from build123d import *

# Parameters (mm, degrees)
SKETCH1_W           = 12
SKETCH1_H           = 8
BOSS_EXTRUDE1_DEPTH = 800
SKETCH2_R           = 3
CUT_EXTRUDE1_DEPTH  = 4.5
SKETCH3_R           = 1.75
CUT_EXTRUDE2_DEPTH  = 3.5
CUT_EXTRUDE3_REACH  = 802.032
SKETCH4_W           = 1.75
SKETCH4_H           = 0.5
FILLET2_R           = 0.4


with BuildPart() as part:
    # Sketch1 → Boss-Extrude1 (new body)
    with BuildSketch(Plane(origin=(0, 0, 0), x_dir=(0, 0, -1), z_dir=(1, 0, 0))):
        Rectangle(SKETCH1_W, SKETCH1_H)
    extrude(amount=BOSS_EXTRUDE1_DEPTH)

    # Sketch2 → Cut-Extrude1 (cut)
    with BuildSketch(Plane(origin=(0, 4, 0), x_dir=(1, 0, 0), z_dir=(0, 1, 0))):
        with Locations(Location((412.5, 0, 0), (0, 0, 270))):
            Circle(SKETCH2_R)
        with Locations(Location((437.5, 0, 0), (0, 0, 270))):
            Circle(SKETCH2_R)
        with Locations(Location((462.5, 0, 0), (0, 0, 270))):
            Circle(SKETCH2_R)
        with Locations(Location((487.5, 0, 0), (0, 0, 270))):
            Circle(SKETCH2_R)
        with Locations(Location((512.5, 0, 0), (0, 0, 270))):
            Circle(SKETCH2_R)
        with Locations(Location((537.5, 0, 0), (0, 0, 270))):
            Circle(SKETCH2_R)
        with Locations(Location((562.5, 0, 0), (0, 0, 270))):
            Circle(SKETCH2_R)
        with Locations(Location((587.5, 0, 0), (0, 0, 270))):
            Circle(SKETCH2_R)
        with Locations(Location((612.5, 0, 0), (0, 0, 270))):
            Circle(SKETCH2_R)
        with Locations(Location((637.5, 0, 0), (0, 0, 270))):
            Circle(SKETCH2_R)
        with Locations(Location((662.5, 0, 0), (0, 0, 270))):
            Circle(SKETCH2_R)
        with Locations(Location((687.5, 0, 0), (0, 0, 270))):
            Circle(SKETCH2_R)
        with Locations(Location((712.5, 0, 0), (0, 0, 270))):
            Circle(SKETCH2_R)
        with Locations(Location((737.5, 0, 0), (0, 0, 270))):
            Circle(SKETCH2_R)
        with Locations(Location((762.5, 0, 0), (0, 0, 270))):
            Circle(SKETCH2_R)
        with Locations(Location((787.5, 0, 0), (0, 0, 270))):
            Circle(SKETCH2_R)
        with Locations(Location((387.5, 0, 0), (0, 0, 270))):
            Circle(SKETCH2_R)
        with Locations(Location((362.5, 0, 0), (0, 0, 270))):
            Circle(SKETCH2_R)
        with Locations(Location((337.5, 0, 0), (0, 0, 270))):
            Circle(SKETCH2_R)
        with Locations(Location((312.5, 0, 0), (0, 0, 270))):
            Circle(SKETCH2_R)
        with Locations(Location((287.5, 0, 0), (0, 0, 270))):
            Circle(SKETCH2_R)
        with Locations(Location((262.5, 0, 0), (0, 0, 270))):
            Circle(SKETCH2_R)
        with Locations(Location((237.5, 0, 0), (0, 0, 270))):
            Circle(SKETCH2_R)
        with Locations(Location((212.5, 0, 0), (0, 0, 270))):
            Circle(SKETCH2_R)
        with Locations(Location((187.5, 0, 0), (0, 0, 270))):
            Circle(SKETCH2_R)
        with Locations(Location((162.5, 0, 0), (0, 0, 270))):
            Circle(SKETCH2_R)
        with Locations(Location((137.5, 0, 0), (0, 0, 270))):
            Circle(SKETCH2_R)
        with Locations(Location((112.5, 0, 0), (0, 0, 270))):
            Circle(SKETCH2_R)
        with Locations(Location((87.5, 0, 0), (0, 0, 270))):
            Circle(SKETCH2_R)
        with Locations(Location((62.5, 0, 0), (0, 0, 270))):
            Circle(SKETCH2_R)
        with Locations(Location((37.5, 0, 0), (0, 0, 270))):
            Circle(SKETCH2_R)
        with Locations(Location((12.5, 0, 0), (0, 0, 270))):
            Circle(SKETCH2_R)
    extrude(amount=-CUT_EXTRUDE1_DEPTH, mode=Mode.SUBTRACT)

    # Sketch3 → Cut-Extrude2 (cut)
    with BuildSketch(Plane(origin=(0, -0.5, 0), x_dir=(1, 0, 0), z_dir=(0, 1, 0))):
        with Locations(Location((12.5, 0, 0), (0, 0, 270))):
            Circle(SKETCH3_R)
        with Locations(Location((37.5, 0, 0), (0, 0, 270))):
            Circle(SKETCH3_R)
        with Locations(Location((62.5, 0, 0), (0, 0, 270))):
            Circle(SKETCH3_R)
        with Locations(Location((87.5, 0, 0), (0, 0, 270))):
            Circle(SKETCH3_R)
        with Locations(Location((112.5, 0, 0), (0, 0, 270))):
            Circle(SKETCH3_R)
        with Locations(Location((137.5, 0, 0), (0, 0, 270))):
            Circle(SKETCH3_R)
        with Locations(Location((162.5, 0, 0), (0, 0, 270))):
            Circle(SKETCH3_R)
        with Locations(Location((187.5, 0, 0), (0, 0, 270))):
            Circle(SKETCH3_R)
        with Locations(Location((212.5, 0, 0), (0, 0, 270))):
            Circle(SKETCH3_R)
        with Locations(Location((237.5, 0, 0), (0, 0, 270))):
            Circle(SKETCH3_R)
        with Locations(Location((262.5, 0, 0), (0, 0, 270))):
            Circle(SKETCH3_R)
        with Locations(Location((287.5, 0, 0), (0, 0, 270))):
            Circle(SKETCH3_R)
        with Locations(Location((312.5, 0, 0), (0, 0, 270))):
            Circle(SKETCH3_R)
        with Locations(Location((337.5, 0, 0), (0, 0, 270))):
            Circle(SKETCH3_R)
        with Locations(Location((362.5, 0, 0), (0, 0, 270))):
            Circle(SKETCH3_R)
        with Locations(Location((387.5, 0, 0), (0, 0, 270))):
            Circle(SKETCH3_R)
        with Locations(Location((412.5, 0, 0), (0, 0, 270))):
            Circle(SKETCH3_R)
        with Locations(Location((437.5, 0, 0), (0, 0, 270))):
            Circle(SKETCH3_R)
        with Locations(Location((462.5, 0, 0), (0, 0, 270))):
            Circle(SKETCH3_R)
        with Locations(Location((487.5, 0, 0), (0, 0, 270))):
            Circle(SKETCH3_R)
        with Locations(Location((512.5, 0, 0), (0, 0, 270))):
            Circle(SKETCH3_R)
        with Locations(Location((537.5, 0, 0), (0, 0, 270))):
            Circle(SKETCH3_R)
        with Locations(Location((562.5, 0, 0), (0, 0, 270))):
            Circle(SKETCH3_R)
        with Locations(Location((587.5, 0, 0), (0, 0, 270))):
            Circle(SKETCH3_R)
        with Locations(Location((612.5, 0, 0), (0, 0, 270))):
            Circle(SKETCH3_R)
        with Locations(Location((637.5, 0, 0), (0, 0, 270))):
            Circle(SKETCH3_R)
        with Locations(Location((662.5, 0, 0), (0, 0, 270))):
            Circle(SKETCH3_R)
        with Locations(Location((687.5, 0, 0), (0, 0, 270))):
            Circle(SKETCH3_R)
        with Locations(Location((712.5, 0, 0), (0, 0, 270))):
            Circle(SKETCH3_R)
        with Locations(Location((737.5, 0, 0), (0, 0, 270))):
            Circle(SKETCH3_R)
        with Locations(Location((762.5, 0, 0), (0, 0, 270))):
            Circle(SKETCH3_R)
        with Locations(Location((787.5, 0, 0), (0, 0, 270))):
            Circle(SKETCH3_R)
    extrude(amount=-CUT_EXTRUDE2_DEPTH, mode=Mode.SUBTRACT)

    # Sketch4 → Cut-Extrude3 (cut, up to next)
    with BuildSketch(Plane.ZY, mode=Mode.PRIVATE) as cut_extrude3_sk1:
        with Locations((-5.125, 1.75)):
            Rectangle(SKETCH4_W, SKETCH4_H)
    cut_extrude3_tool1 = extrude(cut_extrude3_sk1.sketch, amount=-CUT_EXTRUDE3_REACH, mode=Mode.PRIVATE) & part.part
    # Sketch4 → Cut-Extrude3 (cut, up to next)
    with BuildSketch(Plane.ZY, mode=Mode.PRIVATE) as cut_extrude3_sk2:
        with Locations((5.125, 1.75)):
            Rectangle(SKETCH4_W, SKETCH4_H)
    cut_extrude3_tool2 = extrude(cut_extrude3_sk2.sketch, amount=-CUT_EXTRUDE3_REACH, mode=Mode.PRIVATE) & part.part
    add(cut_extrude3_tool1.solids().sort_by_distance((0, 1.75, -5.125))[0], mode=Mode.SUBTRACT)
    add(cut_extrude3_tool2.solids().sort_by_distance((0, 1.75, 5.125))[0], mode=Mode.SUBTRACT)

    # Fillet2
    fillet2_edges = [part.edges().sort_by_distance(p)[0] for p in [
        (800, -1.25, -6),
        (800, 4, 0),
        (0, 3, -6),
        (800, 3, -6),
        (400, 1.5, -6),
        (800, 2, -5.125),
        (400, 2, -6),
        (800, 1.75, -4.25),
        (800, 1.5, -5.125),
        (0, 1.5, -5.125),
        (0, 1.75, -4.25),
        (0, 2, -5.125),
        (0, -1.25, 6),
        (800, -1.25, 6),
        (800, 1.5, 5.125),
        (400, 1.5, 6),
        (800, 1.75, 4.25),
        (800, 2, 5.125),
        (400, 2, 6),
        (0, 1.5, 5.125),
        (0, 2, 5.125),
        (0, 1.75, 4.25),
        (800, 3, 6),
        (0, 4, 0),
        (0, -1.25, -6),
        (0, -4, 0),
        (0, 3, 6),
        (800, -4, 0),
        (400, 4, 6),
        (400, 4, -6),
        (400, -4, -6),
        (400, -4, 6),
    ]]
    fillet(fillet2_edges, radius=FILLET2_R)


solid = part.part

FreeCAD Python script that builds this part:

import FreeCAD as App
import Part
import Sketcher
from FreeCAD import Vector
Q = App.Units.Quantity


def edges_at(feature, points):
    """Names of the edges that pass closest to the given points."""
    edges = feature.Shape.Edges
    near = lambda p: min(range(len(edges)), key=lambda i: edges[i].distToShape(Part.Vertex(*p))[0])
    return sorted({f"Edge{near(p) + 1}" for p in points})

doc = App.newDocument("Part")
body = doc.addObject("PartDesign::Body", "Body")

# Sketch on YZ plane
sketch1 = body.newObject("Sketcher::SketchObject", "Sketch")
sketch1.AttachmentSupport = (doc.getObject("YZ_Plane"), [""])
sketch1.MapMode = "FlatFace"
sketch1.addGeometry(Part.LineSegment(Vector(4, 6, 0), Vector(-4, 6, 0)), False)
sketch1.addGeometry(Part.LineSegment(Vector(-4, 6, 0), Vector(-4, -6, 0)), False)
sketch1.addGeometry(Part.LineSegment(Vector(-4, -6, 0), Vector(4, -6, 0)), False)
sketch1.addGeometry(Part.LineSegment(Vector(4, -6, 0), Vector(4, 6, 0)), False)
sketch1.addConstraint(Sketcher.Constraint("Coincident", 0, 2, 1, 1))
sketch1.addConstraint(Sketcher.Constraint("Coincident", 1, 2, 2, 1))
sketch1.addConstraint(Sketcher.Constraint("Coincident", 2, 2, 3, 1))
sketch1.addConstraint(Sketcher.Constraint("Coincident", 3, 2, 0, 1))
sketch1.addConstraint(Sketcher.Constraint("Horizontal", 0))
sketch1.addConstraint(Sketcher.Constraint("Vertical", 1))
sketch1.addConstraint(Sketcher.Constraint("Horizontal", 2))
sketch1.addConstraint(Sketcher.Constraint("Vertical", 3))
sketch1.addConstraint(Sketcher.Constraint("Symmetric", 0, 2, 2, 2, -1, 1))
sketch1.addConstraint(Sketcher.Constraint("DistanceX", 0, 2, 0, 1, Q("8 mm")))
sketch1.addConstraint(Sketcher.Constraint("DistanceY", 1, 2, 1, 1, Q("12 mm")))
pad1 = body.newObject("PartDesign::Pad", "Pad")
pad1.Profile = sketch1
pad1.Length = 800

# Sketch on XZ plane
sketch2 = body.newObject("Sketcher::SketchObject", "Sketch001")
sketch2.AttachmentSupport = (doc.getObject("XZ_Plane"), [""])
sketch2.MapMode = "FlatFace"
sketch2.AttachmentOffset = App.Placement(Vector(0, 0, -4), App.Rotation())
sketch2.addGeometry(Part.Circle(Vector(412.5, 0, 0), Vector(0, 0, 1), 3), False)
sketch2.addGeometry(Part.Circle(Vector(437.5, 0, 0), Vector(0, 0, 1), 3), False)
sketch2.addGeometry(Part.Circle(Vector(462.5, 0, 0), Vector(0, 0, 1), 3), False)
sketch2.addGeometry(Part.Circle(Vector(487.5, 0, 0), Vector(0, 0, 1), 3), False)
sketch2.addGeometry(Part.Circle(Vector(512.5, 0, 0), Vector(0, 0, 1), 3), False)
sketch2.addGeometry(Part.Circle(Vector(537.5, 0, 0), Vector(0, 0, 1), 3), False)
sketch2.addGeometry(Part.Circle(Vector(562.5, 0, 0), Vector(0, 0, 1), 3), False)
sketch2.addGeometry(Part.Circle(Vector(587.5, 0, 0), Vector(0, 0, 1), 3), False)
sketch2.addGeometry(Part.Circle(Vector(612.5, 0, 0), Vector(0, 0, 1), 3), False)
sketch2.addGeometry(Part.Circle(Vector(637.5, 0, 0), Vector(0, 0, 1), 3), False)
sketch2.addGeometry(Part.Circle(Vector(662.5, 0, 0), Vector(0, 0, 1), 3), False)
sketch2.addGeometry(Part.Circle(Vector(687.5, 0, 0), Vector(0, 0, 1), 3), False)
sketch2.addGeometry(Part.Circle(Vector(712.5, 0, 0), Vector(0, 0, 1), 3), False)
sketch2.addGeometry(Part.Circle(Vector(737.5, 0, 0), Vector(0, 0, 1), 3), False)
sketch2.addGeometry(Part.Circle(Vector(762.5, 0, 0), Vector(0, 0, 1), 3), False)
sketch2.addGeometry(Part.Circle(Vector(787.5, 0, 0), Vector(0, 0, 1), 3), False)
sketch2.addGeometry(Part.Circle(Vector(387.5, 0, 0), Vector(0, 0, 1), 3), False)
sketch2.addGeometry(Part.Circle(Vector(362.5, 0, 0), Vector(0, 0, 1), 3), False)
sketch2.addGeometry(Part.Circle(Vector(337.5, 0, 0), Vector(0, 0, 1), 3), False)
sketch2.addGeometry(Part.Circle(Vector(312.5, 0, 0), Vector(0, 0, 1), 3), False)
sketch2.addGeometry(Part.Circle(Vector(287.5, 0, 0), Vector(0, 0, 1), 3), False)
sketch2.addGeometry(Part.Circle(Vector(262.5, 0, 0), Vector(0, 0, 1), 3), False)
sketch2.addGeometry(Part.Circle(Vector(237.5, 0, 0), Vector(0, 0, 1), 3), False)
sketch2.addGeometry(Part.Circle(Vector(212.5, 0, 0), Vector(0, 0, 1), 3), False)
sketch2.addGeometry(Part.Circle(Vector(187.5, 0, 0), Vector(0, 0, 1), 3), False)
sketch2.addGeometry(Part.Circle(Vector(162.5, 0, 0), Vector(0, 0, 1), 3), False)
sketch2.addGeometry(Part.Circle(Vector(137.5, 0, 0), Vector(0, 0, 1), 3), False)
sketch2.addGeometry(Part.Circle(Vector(112.5, 0, 0), Vector(0, 0, 1), 3), False)
sketch2.addGeometry(Part.Circle(Vector(87.5, 0, 0), Vector(0, 0, 1), 3), False)
sketch2.addGeometry(Part.Circle(Vector(62.5, 0, 0), Vector(0, 0, 1), 3), False)
sketch2.addGeometry(Part.Circle(Vector(37.5, 0, 0), Vector(0, 0, 1), 3), False)
sketch2.addGeometry(Part.Circle(Vector(12.5, 0, 0), Vector(0, 0, 1), 3), False)
sketch2.addConstraint(Sketcher.Constraint("Equal", 0, 1))
sketch2.addConstraint(Sketcher.Constraint("Equal", 1, 2))
sketch2.addConstraint(Sketcher.Constraint("Equal", 2, 3))
sketch2.addConstraint(Sketcher.Constraint("Equal", 3, 4))
sketch2.addConstraint(Sketcher.Constraint("Equal", 4, 5))
sketch2.addConstraint(Sketcher.Constraint("Equal", 5, 6))
sketch2.addConstraint(Sketcher.Constraint("Equal", 6, 7))
sketch2.addConstraint(Sketcher.Constraint("Equal", 7, 8))
sketch2.addConstraint(Sketcher.Constraint("Equal", 8, 9))
sketch2.addConstraint(Sketcher.Constraint("Equal", 9, 10))
sketch2.addConstraint(Sketcher.Constraint("Equal", 10, 11))
sketch2.addConstraint(Sketcher.Constraint("Equal", 11, 12))
sketch2.addConstraint(Sketcher.Constraint("Equal", 12, 13))
sketch2.addConstraint(Sketcher.Constraint("Equal", 13, 14))
sketch2.addConstraint(Sketcher.Constraint("Equal", 14, 15))
sketch2.addConstraint(Sketcher.Constraint("Equal", 15, 16))
sketch2.addConstraint(Sketcher.Constraint("Equal", 16, 17))
sketch2.addConstraint(Sketcher.Constraint("Equal", 17, 18))
sketch2.addConstraint(Sketcher.Constraint("Equal", 18, 19))
sketch2.addConstraint(Sketcher.Constraint("Equal", 19, 20))
sketch2.addConstraint(Sketcher.Constraint("Equal", 20, 21))
sketch2.addConstraint(Sketcher.Constraint("Equal", 21, 22))
sketch2.addConstraint(Sketcher.Constraint("Equal", 22, 23))
sketch2.addConstraint(Sketcher.Constraint("Equal", 23, 24))
sketch2.addConstraint(Sketcher.Constraint("Equal", 24, 25))
sketch2.addConstraint(Sketcher.Constraint("Equal", 25, 26))
sketch2.addConstraint(Sketcher.Constraint("Equal", 26, 27))
sketch2.addConstraint(Sketcher.Constraint("Equal", 27, 28))
sketch2.addConstraint(Sketcher.Constraint("Equal", 28, 29))
sketch2.addConstraint(Sketcher.Constraint("Equal", 29, 30))
sketch2.addConstraint(Sketcher.Constraint("Equal", 30, 31))
sketch2.addConstraint(Sketcher.Constraint("PointOnObject", 0, 3, -1))
sketch2.addConstraint(Sketcher.Constraint("PointOnObject", 1, 3, -1))
sketch2.addConstraint(Sketcher.Constraint("PointOnObject", 2, 3, -1))
sketch2.addConstraint(Sketcher.Constraint("PointOnObject", 3, 3, -1))
sketch2.addConstraint(Sketcher.Constraint("PointOnObject", 4, 3, -1))
sketch2.addConstraint(Sketcher.Constraint("PointOnObject", 5, 3, -1))
sketch2.addConstraint(Sketcher.Constraint("PointOnObject", 6, 3, -1))
sketch2.addConstraint(Sketcher.Constraint("PointOnObject", 7, 3, -1))
sketch2.addConstraint(Sketcher.Constraint("PointOnObject", 8, 3, -1))
sketch2.addConstraint(Sketcher.Constraint("PointOnObject", 9, 3, -1))
sketch2.addConstraint(Sketcher.Constraint("PointOnObject", 10, 3, -1))
sketch2.addConstraint(Sketcher.Constraint("PointOnObject", 11, 3, -1))
sketch2.addConstraint(Sketcher.Constraint("PointOnObject", 12, 3, -1))
sketch2.addConstraint(Sketcher.Constraint("PointOnObject", 13, 3, -1))
sketch2.addConstraint(Sketcher.Constraint("PointOnObject", 14, 3, -1))
sketch2.addConstraint(Sketcher.Constraint("PointOnObject", 15, 3, -1))
sketch2.addConstraint(Sketcher.Constraint("PointOnObject", 16, 3, -1))
sketch2.addConstraint(Sketcher.Constraint("PointOnObject", 17, 3, -1))
sketch2.addConstraint(Sketcher.Constraint("PointOnObject", 18, 3, -1))
sketch2.addConstraint(Sketcher.Constraint("PointOnObject", 19, 3, -1))
sketch2.addConstraint(Sketcher.Constraint("PointOnObject", 20, 3, -1))
sketch2.addConstraint(Sketcher.Constraint("PointOnObject", 21, 3, -1))
sketch2.addConstraint(Sketcher.Constraint("PointOnObject", 22, 3, -1))
sketch2.addConstraint(Sketcher.Constraint("PointOnObject", 23, 3, -1))
sketch2.addConstraint(Sketcher.Constraint("PointOnObject", 24, 3, -1))
sketch2.addConstraint(Sketcher.Constraint("PointOnObject", 25, 3, -1))
sketch2.addConstraint(Sketcher.Constraint("PointOnObject", 26, 3, -1))
sketch2.addConstraint(Sketcher.Constraint("PointOnObject", 27, 3, -1))
sketch2.addConstraint(Sketcher.Constraint("PointOnObject", 28, 3, -1))
sketch2.addConstraint(Sketcher.Constraint("PointOnObject", 29, 3, -1))
sketch2.addConstraint(Sketcher.Constraint("PointOnObject", 30, 3, -1))
sketch2.addConstraint(Sketcher.Constraint("PointOnObject", 31, 3, -1))
sketch2.addConstraint(Sketcher.Constraint("Diameter", 0, Q("6 mm")))
sketch2.addConstraint(Sketcher.Constraint("DistanceX", 0, 3, 1, 3, Q("25 mm")))
sketch2.addConstraint(Sketcher.Constraint("DistanceX", 1, 3, 2, 3, Q("25 mm")))
sketch2.addConstraint(Sketcher.Constraint("DistanceX", 2, 3, 3, 3, Q("25 mm")))
sketch2.addConstraint(Sketcher.Constraint("DistanceX", 3, 3, 4, 3, Q("25 mm")))
sketch2.addConstraint(Sketcher.Constraint("DistanceX", 4, 3, 5, 3, Q("25 mm")))
sketch2.addConstraint(Sketcher.Constraint("DistanceX", 5, 3, 6, 3, Q("25 mm")))
sketch2.addConstraint(Sketcher.Constraint("DistanceX", 6, 3, 7, 3, Q("25 mm")))
sketch2.addConstraint(Sketcher.Constraint("DistanceX", 7, 3, 8, 3, Q("25 mm")))
sketch2.addConstraint(Sketcher.Constraint("DistanceX", 8, 3, 9, 3, Q("25 mm")))
sketch2.addConstraint(Sketcher.Constraint("DistanceX", 9, 3, 10, 3, Q("25 mm")))
sketch2.addConstraint(Sketcher.Constraint("DistanceX", 10, 3, 11, 3, Q("25 mm")))
sketch2.addConstraint(Sketcher.Constraint("DistanceX", 11, 3, 12, 3, Q("25 mm")))
sketch2.addConstraint(Sketcher.Constraint("DistanceX", 12, 3, 13, 3, Q("25 mm")))
sketch2.addConstraint(Sketcher.Constraint("DistanceX", 13, 3, 14, 3, Q("25 mm")))
sketch2.addConstraint(Sketcher.Constraint("DistanceX", 14, 3, 15, 3, Q("25 mm")))
sketch2.addConstraint(Sketcher.Constraint("DistanceX", 16, 3, 0, 3, Q("25 mm")))
sketch2.addConstraint(Sketcher.Constraint("DistanceX", 17, 3, 16, 3, Q("25 mm")))
sketch2.addConstraint(Sketcher.Constraint("DistanceX", 18, 3, 17, 3, Q("25 mm")))
sketch2.addConstraint(Sketcher.Constraint("DistanceX", 19, 3, 18, 3, Q("25 mm")))
sketch2.addConstraint(Sketcher.Constraint("DistanceX", 20, 3, 19, 3, Q("25 mm")))
sketch2.addConstraint(Sketcher.Constraint("DistanceX", 21, 3, 20, 3, Q("25 mm")))
sketch2.addConstraint(Sketcher.Constraint("DistanceX", 22, 3, 21, 3, Q("25 mm")))
sketch2.addConstraint(Sketcher.Constraint("DistanceX", 23, 3, 22, 3, Q("25 mm")))
sketch2.addConstraint(Sketcher.Constraint("DistanceX", 24, 3, 23, 3, Q("25 mm")))
sketch2.addConstraint(Sketcher.Constraint("DistanceX", 25, 3, 24, 3, Q("25 mm")))
sketch2.addConstraint(Sketcher.Constraint("DistanceX", 26, 3, 25, 3, Q("25 mm")))
sketch2.addConstraint(Sketcher.Constraint("DistanceX", 27, 3, 26, 3, Q("25 mm")))
sketch2.addConstraint(Sketcher.Constraint("DistanceX", 28, 3, 27, 3, Q("25 mm")))
sketch2.addConstraint(Sketcher.Constraint("DistanceX", 29, 3, 28, 3, Q("25 mm")))
sketch2.addConstraint(Sketcher.Constraint("DistanceX", 30, 3, 29, 3, Q("25 mm")))
sketch2.addConstraint(Sketcher.Constraint("DistanceX", 31, 3, 30, 3, Q("25 mm")))
sketch2.addConstraint(Sketcher.Constraint("DistanceX", -1, 1, 0, 3, Q("412.5 mm")))
pocket1 = body.newObject("PartDesign::Pocket", "Pocket")
pocket1.Profile = sketch2
pocket1.Length = 4.5
pocket1.Reversed = True

# Sketch on XZ plane
sketch3 = body.newObject("Sketcher::SketchObject", "Sketch002")
sketch3.AttachmentSupport = (doc.getObject("XZ_Plane"), [""])
sketch3.MapMode = "FlatFace"
sketch3.AttachmentOffset = App.Placement(Vector(0, 0, 0.5), App.Rotation())
sketch3.addGeometry(Part.Circle(Vector(12.5, 0, 0), Vector(0, 0, 1), 1.8), False)
sketch3.addGeometry(Part.Circle(Vector(37.5, 0, 0), Vector(0, 0, 1), 1.8), False)
sketch3.addGeometry(Part.Circle(Vector(62.5, 0, 0), Vector(0, 0, 1), 1.8), False)
sketch3.addGeometry(Part.Circle(Vector(87.5, 0, 0), Vector(0, 0, 1), 1.8), False)
sketch3.addGeometry(Part.Circle(Vector(112.5, 0, 0), Vector(0, 0, 1), 1.8), False)
sketch3.addGeometry(Part.Circle(Vector(137.5, 0, 0), Vector(0, 0, 1), 1.8), False)
sketch3.addGeometry(Part.Circle(Vector(162.5, 0, 0), Vector(0, 0, 1), 1.8), False)
sketch3.addGeometry(Part.Circle(Vector(187.5, 0, 0), Vector(0, 0, 1), 1.8), False)
sketch3.addGeometry(Part.Circle(Vector(212.5, 0, 0), Vector(0, 0, 1), 1.8), False)
sketch3.addGeometry(Part.Circle(Vector(237.5, 0, 0), Vector(0, 0, 1), 1.8), False)
sketch3.addGeometry(Part.Circle(Vector(262.5, 0, 0), Vector(0, 0, 1), 1.8), False)
sketch3.addGeometry(Part.Circle(Vector(287.5, 0, 0), Vector(0, 0, 1), 1.8), False)
sketch3.addGeometry(Part.Circle(Vector(312.5, 0, 0), Vector(0, 0, 1), 1.8), False)
sketch3.addGeometry(Part.Circle(Vector(337.5, 0, 0), Vector(0, 0, 1), 1.8), False)
sketch3.addGeometry(Part.Circle(Vector(362.5, 0, 0), Vector(0, 0, 1), 1.8), False)
sketch3.addGeometry(Part.Circle(Vector(387.5, 0, 0), Vector(0, 0, 1), 1.8), False)
sketch3.addGeometry(Part.Circle(Vector(412.5, 0, 0), Vector(0, 0, 1), 1.8), False)
sketch3.addGeometry(Part.Circle(Vector(437.5, 0, 0), Vector(0, 0, 1), 1.8), False)
sketch3.addGeometry(Part.Circle(Vector(462.5, 0, 0), Vector(0, 0, 1), 1.8), False)
sketch3.addGeometry(Part.Circle(Vector(487.5, 0, 0), Vector(0, 0, 1), 1.8), False)
sketch3.addGeometry(Part.Circle(Vector(512.5, 0, 0), Vector(0, 0, 1), 1.8), False)
sketch3.addGeometry(Part.Circle(Vector(537.5, 0, 0), Vector(0, 0, 1), 1.8), False)
sketch3.addGeometry(Part.Circle(Vector(562.5, 0, 0), Vector(0, 0, 1), 1.8), False)
sketch3.addGeometry(Part.Circle(Vector(587.5, 0, 0), Vector(0, 0, 1), 1.8), False)
sketch3.addGeometry(Part.Circle(Vector(612.5, 0, 0), Vector(0, 0, 1), 1.8), False)
sketch3.addGeometry(Part.Circle(Vector(637.5, 0, 0), Vector(0, 0, 1), 1.8), False)
sketch3.addGeometry(Part.Circle(Vector(662.5, 0, 0), Vector(0, 0, 1), 1.8), False)
sketch3.addGeometry(Part.Circle(Vector(687.5, 0, 0), Vector(0, 0, 1), 1.8), False)
sketch3.addGeometry(Part.Circle(Vector(712.5, 0, 0), Vector(0, 0, 1), 1.8), False)
sketch3.addGeometry(Part.Circle(Vector(737.5, 0, 0), Vector(0, 0, 1), 1.8), False)
sketch3.addGeometry(Part.Circle(Vector(762.5, 0, 0), Vector(0, 0, 1), 1.8), False)
sketch3.addGeometry(Part.Circle(Vector(787.5, 0, 0), Vector(0, 0, 1), 1.8), False)
sketch3.addConstraint(Sketcher.Constraint("Equal", 0, 1))
sketch3.addConstraint(Sketcher.Constraint("Equal", 1, 2))
sketch3.addConstraint(Sketcher.Constraint("Equal", 2, 3))
sketch3.addConstraint(Sketcher.Constraint("Equal", 3, 4))
sketch3.addConstraint(Sketcher.Constraint("Equal", 4, 5))
sketch3.addConstraint(Sketcher.Constraint("Equal", 5, 6))
sketch3.addConstraint(Sketcher.Constraint("Equal", 6, 7))
sketch3.addConstraint(Sketcher.Constraint("Equal", 7, 8))
sketch3.addConstraint(Sketcher.Constraint("Equal", 8, 9))
sketch3.addConstraint(Sketcher.Constraint("Equal", 9, 10))
sketch3.addConstraint(Sketcher.Constraint("Equal", 10, 11))
sketch3.addConstraint(Sketcher.Constraint("Equal", 11, 12))
sketch3.addConstraint(Sketcher.Constraint("Equal", 12, 13))
sketch3.addConstraint(Sketcher.Constraint("Equal", 13, 14))
sketch3.addConstraint(Sketcher.Constraint("Equal", 14, 15))
sketch3.addConstraint(Sketcher.Constraint("Equal", 15, 16))
sketch3.addConstraint(Sketcher.Constraint("Equal", 16, 17))
sketch3.addConstraint(Sketcher.Constraint("Equal", 17, 18))
sketch3.addConstraint(Sketcher.Constraint("Equal", 18, 19))
sketch3.addConstraint(Sketcher.Constraint("Equal", 19, 20))
sketch3.addConstraint(Sketcher.Constraint("Equal", 20, 21))
sketch3.addConstraint(Sketcher.Constraint("Equal", 21, 22))
sketch3.addConstraint(Sketcher.Constraint("Equal", 22, 23))
sketch3.addConstraint(Sketcher.Constraint("Equal", 23, 24))
sketch3.addConstraint(Sketcher.Constraint("Equal", 24, 25))
sketch3.addConstraint(Sketcher.Constraint("Equal", 25, 26))
sketch3.addConstraint(Sketcher.Constraint("Equal", 26, 27))
sketch3.addConstraint(Sketcher.Constraint("Equal", 27, 28))
sketch3.addConstraint(Sketcher.Constraint("Equal", 28, 29))
sketch3.addConstraint(Sketcher.Constraint("Equal", 29, 30))
sketch3.addConstraint(Sketcher.Constraint("Equal", 30, 31))
sketch3.addConstraint(Sketcher.Constraint("PointOnObject", 0, 3, -1))
sketch3.addConstraint(Sketcher.Constraint("PointOnObject", 1, 3, -1))
sketch3.addConstraint(Sketcher.Constraint("PointOnObject", 2, 3, -1))
sketch3.addConstraint(Sketcher.Constraint("PointOnObject", 3, 3, -1))
sketch3.addConstraint(Sketcher.Constraint("PointOnObject", 4, 3, -1))
sketch3.addConstraint(Sketcher.Constraint("PointOnObject", 5, 3, -1))
sketch3.addConstraint(Sketcher.Constraint("PointOnObject", 6, 3, -1))
sketch3.addConstraint(Sketcher.Constraint("PointOnObject", 7, 3, -1))
sketch3.addConstraint(Sketcher.Constraint("PointOnObject", 8, 3, -1))
sketch3.addConstraint(Sketcher.Constraint("PointOnObject", 9, 3, -1))
sketch3.addConstraint(Sketcher.Constraint("PointOnObject", 10, 3, -1))
sketch3.addConstraint(Sketcher.Constraint("PointOnObject", 11, 3, -1))
sketch3.addConstraint(Sketcher.Constraint("PointOnObject", 12, 3, -1))
sketch3.addConstraint(Sketcher.Constraint("PointOnObject", 13, 3, -1))
sketch3.addConstraint(Sketcher.Constraint("PointOnObject", 14, 3, -1))
sketch3.addConstraint(Sketcher.Constraint("PointOnObject", 15, 3, -1))
sketch3.addConstraint(Sketcher.Constraint("PointOnObject", 16, 3, -1))
sketch3.addConstraint(Sketcher.Constraint("PointOnObject", 17, 3, -1))
sketch3.addConstraint(Sketcher.Constraint("PointOnObject", 18, 3, -1))
sketch3.addConstraint(Sketcher.Constraint("PointOnObject", 19, 3, -1))
sketch3.addConstraint(Sketcher.Constraint("PointOnObject", 20, 3, -1))
sketch3.addConstraint(Sketcher.Constraint("PointOnObject", 21, 3, -1))
sketch3.addConstraint(Sketcher.Constraint("PointOnObject", 22, 3, -1))
sketch3.addConstraint(Sketcher.Constraint("PointOnObject", 23, 3, -1))
sketch3.addConstraint(Sketcher.Constraint("PointOnObject", 24, 3, -1))
sketch3.addConstraint(Sketcher.Constraint("PointOnObject", 25, 3, -1))
sketch3.addConstraint(Sketcher.Constraint("PointOnObject", 26, 3, -1))
sketch3.addConstraint(Sketcher.Constraint("PointOnObject", 27, 3, -1))
sketch3.addConstraint(Sketcher.Constraint("PointOnObject", 28, 3, -1))
sketch3.addConstraint(Sketcher.Constraint("PointOnObject", 29, 3, -1))
sketch3.addConstraint(Sketcher.Constraint("PointOnObject", 30, 3, -1))
sketch3.addConstraint(Sketcher.Constraint("PointOnObject", 31, 3, -1))
sketch3.addConstraint(Sketcher.Constraint("Diameter", 0, Q("3.5 mm")))
sketch3.addConstraint(Sketcher.Constraint("DistanceX", 0, 3, 1, 3, Q("25 mm")))
sketch3.addConstraint(Sketcher.Constraint("DistanceX", 1, 3, 2, 3, Q("25 mm")))
sketch3.addConstraint(Sketcher.Constraint("DistanceX", 2, 3, 3, 3, Q("25 mm")))
sketch3.addConstraint(Sketcher.Constraint("DistanceX", 3, 3, 4, 3, Q("25 mm")))
sketch3.addConstraint(Sketcher.Constraint("DistanceX", 4, 3, 5, 3, Q("25 mm")))
sketch3.addConstraint(Sketcher.Constraint("DistanceX", 5, 3, 6, 3, Q("25 mm")))
sketch3.addConstraint(Sketcher.Constraint("DistanceX", 6, 3, 7, 3, Q("25 mm")))
sketch3.addConstraint(Sketcher.Constraint("DistanceX", 7, 3, 8, 3, Q("25 mm")))
sketch3.addConstraint(Sketcher.Constraint("DistanceX", 8, 3, 9, 3, Q("25 mm")))
sketch3.addConstraint(Sketcher.Constraint("DistanceX", 9, 3, 10, 3, Q("25 mm")))
sketch3.addConstraint(Sketcher.Constraint("DistanceX", 10, 3, 11, 3, Q("25 mm")))
sketch3.addConstraint(Sketcher.Constraint("DistanceX", 11, 3, 12, 3, Q("25 mm")))
sketch3.addConstraint(Sketcher.Constraint("DistanceX", 12, 3, 13, 3, Q("25 mm")))
sketch3.addConstraint(Sketcher.Constraint("DistanceX", 13, 3, 14, 3, Q("25 mm")))
sketch3.addConstraint(Sketcher.Constraint("DistanceX", 14, 3, 15, 3, Q("25 mm")))
sketch3.addConstraint(Sketcher.Constraint("DistanceX", 15, 3, 16, 3, Q("25 mm")))
sketch3.addConstraint(Sketcher.Constraint("DistanceX", 16, 3, 17, 3, Q("25 mm")))
sketch3.addConstraint(Sketcher.Constraint("DistanceX", 17, 3, 18, 3, Q("25 mm")))
sketch3.addConstraint(Sketcher.Constraint("DistanceX", 18, 3, 19, 3, Q("25 mm")))
sketch3.addConstraint(Sketcher.Constraint("DistanceX", 19, 3, 20, 3, Q("25 mm")))
sketch3.addConstraint(Sketcher.Constraint("DistanceX", 20, 3, 21, 3, Q("25 mm")))
sketch3.addConstraint(Sketcher.Constraint("DistanceX", 21, 3, 22, 3, Q("25 mm")))
sketch3.addConstraint(Sketcher.Constraint("DistanceX", 22, 3, 23, 3, Q("25 mm")))
sketch3.addConstraint(Sketcher.Constraint("DistanceX", 23, 3, 24, 3, Q("25 mm")))
sketch3.addConstraint(Sketcher.Constraint("DistanceX", 24, 3, 25, 3, Q("25 mm")))
sketch3.addConstraint(Sketcher.Constraint("DistanceX", 25, 3, 26, 3, Q("25 mm")))
sketch3.addConstraint(Sketcher.Constraint("DistanceX", 26, 3, 27, 3, Q("25 mm")))
sketch3.addConstraint(Sketcher.Constraint("DistanceX", 27, 3, 28, 3, Q("25 mm")))
sketch3.addConstraint(Sketcher.Constraint("DistanceX", 28, 3, 29, 3, Q("25 mm")))
sketch3.addConstraint(Sketcher.Constraint("DistanceX", 29, 3, 30, 3, Q("25 mm")))
sketch3.addConstraint(Sketcher.Constraint("DistanceX", 30, 3, 31, 3, Q("25 mm")))
sketch3.addConstraint(Sketcher.Constraint("DistanceX", -1, 1, 0, 3, Q("12.5 mm")))
pocket2 = body.newObject("PartDesign::Pocket", "Pocket001")
pocket2.Profile = sketch3
pocket2.Length = 3.5
pocket2.Reversed = True

# Sketch on YZ plane
sketch4 = body.newObject("Sketcher::SketchObject", "Sketch003")
sketch4.AttachmentSupport = (doc.getObject("YZ_Plane"), [""])
sketch4.MapMode = "FlatFace"
sketch4.addGeometry(Part.LineSegment(Vector(2, -6, 0), Vector(1.5, -6, 0)), False)
sketch4.addGeometry(Part.LineSegment(Vector(1.5, -6, 0), Vector(1.5, -4.2, 0)), False)
sketch4.addGeometry(Part.LineSegment(Vector(1.5, -4.2, 0), Vector(2, -4.2, 0)), False)
sketch4.addGeometry(Part.LineSegment(Vector(2, -4.2, 0), Vector(2, -6, 0)), False)
sketch4.addConstraint(Sketcher.Constraint("Coincident", 0, 2, 1, 1))
sketch4.addConstraint(Sketcher.Constraint("Coincident", 1, 2, 2, 1))
sketch4.addConstraint(Sketcher.Constraint("Coincident", 2, 2, 3, 1))
sketch4.addConstraint(Sketcher.Constraint("Coincident", 3, 2, 0, 1))
sketch4.addConstraint(Sketcher.Constraint("Horizontal", 0))
sketch4.addConstraint(Sketcher.Constraint("Vertical", 1))
sketch4.addConstraint(Sketcher.Constraint("Horizontal", 2))
sketch4.addConstraint(Sketcher.Constraint("Vertical", 3))
sketch4.addConstraint(Sketcher.Constraint("DistanceX", 0, 2, 0, 1, Q("0.5 mm")))
sketch4.addConstraint(Sketcher.Constraint("DistanceY", 0, 2, -1, 1, Q("6 mm")))
sketch4.addConstraint(Sketcher.Constraint("DistanceX", -1, 1, 2, 2, Q("2 mm")))
sketch4.addConstraint(Sketcher.Constraint("DistanceY", 1, 1, 1, 2, Q("1.75 mm")))
pocket3 = body.newObject("PartDesign::Pocket", "Pocket002")
pocket3.Profile = sketch4
pocket3.Type = "UpToFirst"
pocket3.Reversed = True

# Sketch on YZ plane
sketch5 = body.newObject("Sketcher::SketchObject", "Sketch004")
sketch5.AttachmentSupport = (doc.getObject("YZ_Plane"), [""])
sketch5.MapMode = "FlatFace"
sketch5.addGeometry(Part.LineSegment(Vector(2, 4.2, 0), Vector(1.5, 4.2, 0)), False)
sketch5.addGeometry(Part.LineSegment(Vector(1.5, 4.2, 0), Vector(1.5, 6, 0)), False)
sketch5.addGeometry(Part.LineSegment(Vector(1.5, 6, 0), Vector(2, 6, 0)), False)
sketch5.addGeometry(Part.LineSegment(Vector(2, 6, 0), Vector(2, 4.2, 0)), False)
sketch5.addConstraint(Sketcher.Constraint("Coincident", 0, 2, 1, 1))
sketch5.addConstraint(Sketcher.Constraint("Coincident", 1, 2, 2, 1))
sketch5.addConstraint(Sketcher.Constraint("Coincident", 2, 2, 3, 1))
sketch5.addConstraint(Sketcher.Constraint("Coincident", 3, 2, 0, 1))
sketch5.addConstraint(Sketcher.Constraint("Horizontal", 0))
sketch5.addConstraint(Sketcher.Constraint("Vertical", 1))
sketch5.addConstraint(Sketcher.Constraint("Horizontal", 2))
sketch5.addConstraint(Sketcher.Constraint("Vertical", 3))
sketch5.addConstraint(Sketcher.Constraint("DistanceX", 0, 2, 0, 1, Q("0.5 mm")))
sketch5.addConstraint(Sketcher.Constraint("DistanceY", -1, 1, 1, 2, Q("6 mm")))
sketch5.addConstraint(Sketcher.Constraint("DistanceX", -1, 1, 2, 2, Q("2 mm")))
sketch5.addConstraint(Sketcher.Constraint("DistanceY", 1, 1, 1, 2, Q("1.75 mm")))
pocket4 = body.newObject("PartDesign::Pocket", "Pocket003")
pocket4.Profile = sketch5
pocket4.Type = "UpToFirst"
pocket4.Reversed = True
doc.recompute()

fillet = body.newObject("PartDesign::Fillet", "Fillet")
fillet.Base = (pocket4, edges_at(pocket4, [
    (800, -1.25, -6),
    (800, 4, 0),
    (0, 3, -6),
    (800, 3, -6),
    (400, 1.5, -6),
    (800, 2, -5.125),
    (400, 2, -6),
    (800, 1.75, -4.25),
    (800, 1.5, -5.125),
    (0, 1.5, -5.125),
    (0, 1.75, -4.25),
    (0, 2, -5.125),
    (0, -1.25, 6),
    (800, -1.25, 6),
    (800, 1.5, 5.125),
    (400, 1.5, 6),
    (800, 1.75, 4.25),
    (800, 2, 5.125),
    (400, 2, 6),
    (0, 1.5, 5.125),
    (0, 2, 5.125),
    (0, 1.75, 4.25),
    (800, 3, 6),
    (0, 4, 0),
    (0, -1.25, -6),
    (0, -4, 0),
    (0, 3, 6),
    (800, -4, 0),
    (400, 4, 6),
    (400, 4, -6),
    (400, -4, -6),
    (400, -4, 6),
]))
fillet.Radius = 0.4

doc.recompute()
